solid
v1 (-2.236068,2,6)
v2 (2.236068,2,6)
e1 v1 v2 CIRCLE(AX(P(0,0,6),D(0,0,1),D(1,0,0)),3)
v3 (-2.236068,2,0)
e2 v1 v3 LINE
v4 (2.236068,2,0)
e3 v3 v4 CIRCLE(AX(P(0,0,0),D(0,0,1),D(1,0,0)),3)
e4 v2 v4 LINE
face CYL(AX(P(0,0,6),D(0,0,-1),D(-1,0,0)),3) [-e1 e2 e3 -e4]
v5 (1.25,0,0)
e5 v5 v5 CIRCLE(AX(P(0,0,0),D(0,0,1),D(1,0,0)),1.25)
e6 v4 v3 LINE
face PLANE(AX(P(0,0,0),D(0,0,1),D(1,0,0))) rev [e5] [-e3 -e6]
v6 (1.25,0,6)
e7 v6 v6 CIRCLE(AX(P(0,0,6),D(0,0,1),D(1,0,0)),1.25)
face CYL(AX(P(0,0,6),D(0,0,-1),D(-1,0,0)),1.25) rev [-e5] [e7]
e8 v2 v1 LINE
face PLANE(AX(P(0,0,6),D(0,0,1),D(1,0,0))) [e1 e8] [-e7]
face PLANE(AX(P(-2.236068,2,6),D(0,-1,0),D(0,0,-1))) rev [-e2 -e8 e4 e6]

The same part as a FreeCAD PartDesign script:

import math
import FreeCAD as App
import Part
import Sketcher

V = App.Vector

doc = App.newDocument("Part")
body = doc.addObject("PartDesign::Body", "Body")

# Sketch on XY plane
sketch1 = doc.addObject("Sketcher::SketchObject", "Sketch")
body.addObject(sketch1)
sketch1.AttachmentSupport = (doc.XY_Plane, [""])
sketch1.MapMode = "FlatFace"
sketch1.addGeometry([
    Part.LineSegment(V(2.2, 2, 0), V(-2.2, 2, 0)),
    Part.ArcOfCircle(Part.Circle(V(0, 0, 0), V(0, 0, 1), 3), math.radians(138), math.radians(402)),
    Part.Circle(V(0, 0, 0), V(0, 0, 1), 1.2),
], False)
sketch1.addConstraint([
    Sketcher.Constraint("Coincident", 0, 1, 1, 2),
    Sketcher.Constraint("Coincident", 1, 1, 0, 2),
    Sketcher.Constraint("Horizontal", 0),
    Sketcher.Constraint("Coincident", 1, 3, -1, 1),
    Sketcher.Constraint("Coincident", 2, 3, -1, 1),
    Sketcher.Constraint("Radius", 1, 3.0),
    Sketcher.Constraint("Diameter", 2, 2.5),
    Sketcher.Constraint("DistanceY", -1, 1, 0, 1, 2.0),
])
pad1 = doc.addObject("PartDesign::Pad", "Pad")
body.addObject(pad1)
pad1.Profile = sketch1
pad1.Length = 6

doc.recompute()
